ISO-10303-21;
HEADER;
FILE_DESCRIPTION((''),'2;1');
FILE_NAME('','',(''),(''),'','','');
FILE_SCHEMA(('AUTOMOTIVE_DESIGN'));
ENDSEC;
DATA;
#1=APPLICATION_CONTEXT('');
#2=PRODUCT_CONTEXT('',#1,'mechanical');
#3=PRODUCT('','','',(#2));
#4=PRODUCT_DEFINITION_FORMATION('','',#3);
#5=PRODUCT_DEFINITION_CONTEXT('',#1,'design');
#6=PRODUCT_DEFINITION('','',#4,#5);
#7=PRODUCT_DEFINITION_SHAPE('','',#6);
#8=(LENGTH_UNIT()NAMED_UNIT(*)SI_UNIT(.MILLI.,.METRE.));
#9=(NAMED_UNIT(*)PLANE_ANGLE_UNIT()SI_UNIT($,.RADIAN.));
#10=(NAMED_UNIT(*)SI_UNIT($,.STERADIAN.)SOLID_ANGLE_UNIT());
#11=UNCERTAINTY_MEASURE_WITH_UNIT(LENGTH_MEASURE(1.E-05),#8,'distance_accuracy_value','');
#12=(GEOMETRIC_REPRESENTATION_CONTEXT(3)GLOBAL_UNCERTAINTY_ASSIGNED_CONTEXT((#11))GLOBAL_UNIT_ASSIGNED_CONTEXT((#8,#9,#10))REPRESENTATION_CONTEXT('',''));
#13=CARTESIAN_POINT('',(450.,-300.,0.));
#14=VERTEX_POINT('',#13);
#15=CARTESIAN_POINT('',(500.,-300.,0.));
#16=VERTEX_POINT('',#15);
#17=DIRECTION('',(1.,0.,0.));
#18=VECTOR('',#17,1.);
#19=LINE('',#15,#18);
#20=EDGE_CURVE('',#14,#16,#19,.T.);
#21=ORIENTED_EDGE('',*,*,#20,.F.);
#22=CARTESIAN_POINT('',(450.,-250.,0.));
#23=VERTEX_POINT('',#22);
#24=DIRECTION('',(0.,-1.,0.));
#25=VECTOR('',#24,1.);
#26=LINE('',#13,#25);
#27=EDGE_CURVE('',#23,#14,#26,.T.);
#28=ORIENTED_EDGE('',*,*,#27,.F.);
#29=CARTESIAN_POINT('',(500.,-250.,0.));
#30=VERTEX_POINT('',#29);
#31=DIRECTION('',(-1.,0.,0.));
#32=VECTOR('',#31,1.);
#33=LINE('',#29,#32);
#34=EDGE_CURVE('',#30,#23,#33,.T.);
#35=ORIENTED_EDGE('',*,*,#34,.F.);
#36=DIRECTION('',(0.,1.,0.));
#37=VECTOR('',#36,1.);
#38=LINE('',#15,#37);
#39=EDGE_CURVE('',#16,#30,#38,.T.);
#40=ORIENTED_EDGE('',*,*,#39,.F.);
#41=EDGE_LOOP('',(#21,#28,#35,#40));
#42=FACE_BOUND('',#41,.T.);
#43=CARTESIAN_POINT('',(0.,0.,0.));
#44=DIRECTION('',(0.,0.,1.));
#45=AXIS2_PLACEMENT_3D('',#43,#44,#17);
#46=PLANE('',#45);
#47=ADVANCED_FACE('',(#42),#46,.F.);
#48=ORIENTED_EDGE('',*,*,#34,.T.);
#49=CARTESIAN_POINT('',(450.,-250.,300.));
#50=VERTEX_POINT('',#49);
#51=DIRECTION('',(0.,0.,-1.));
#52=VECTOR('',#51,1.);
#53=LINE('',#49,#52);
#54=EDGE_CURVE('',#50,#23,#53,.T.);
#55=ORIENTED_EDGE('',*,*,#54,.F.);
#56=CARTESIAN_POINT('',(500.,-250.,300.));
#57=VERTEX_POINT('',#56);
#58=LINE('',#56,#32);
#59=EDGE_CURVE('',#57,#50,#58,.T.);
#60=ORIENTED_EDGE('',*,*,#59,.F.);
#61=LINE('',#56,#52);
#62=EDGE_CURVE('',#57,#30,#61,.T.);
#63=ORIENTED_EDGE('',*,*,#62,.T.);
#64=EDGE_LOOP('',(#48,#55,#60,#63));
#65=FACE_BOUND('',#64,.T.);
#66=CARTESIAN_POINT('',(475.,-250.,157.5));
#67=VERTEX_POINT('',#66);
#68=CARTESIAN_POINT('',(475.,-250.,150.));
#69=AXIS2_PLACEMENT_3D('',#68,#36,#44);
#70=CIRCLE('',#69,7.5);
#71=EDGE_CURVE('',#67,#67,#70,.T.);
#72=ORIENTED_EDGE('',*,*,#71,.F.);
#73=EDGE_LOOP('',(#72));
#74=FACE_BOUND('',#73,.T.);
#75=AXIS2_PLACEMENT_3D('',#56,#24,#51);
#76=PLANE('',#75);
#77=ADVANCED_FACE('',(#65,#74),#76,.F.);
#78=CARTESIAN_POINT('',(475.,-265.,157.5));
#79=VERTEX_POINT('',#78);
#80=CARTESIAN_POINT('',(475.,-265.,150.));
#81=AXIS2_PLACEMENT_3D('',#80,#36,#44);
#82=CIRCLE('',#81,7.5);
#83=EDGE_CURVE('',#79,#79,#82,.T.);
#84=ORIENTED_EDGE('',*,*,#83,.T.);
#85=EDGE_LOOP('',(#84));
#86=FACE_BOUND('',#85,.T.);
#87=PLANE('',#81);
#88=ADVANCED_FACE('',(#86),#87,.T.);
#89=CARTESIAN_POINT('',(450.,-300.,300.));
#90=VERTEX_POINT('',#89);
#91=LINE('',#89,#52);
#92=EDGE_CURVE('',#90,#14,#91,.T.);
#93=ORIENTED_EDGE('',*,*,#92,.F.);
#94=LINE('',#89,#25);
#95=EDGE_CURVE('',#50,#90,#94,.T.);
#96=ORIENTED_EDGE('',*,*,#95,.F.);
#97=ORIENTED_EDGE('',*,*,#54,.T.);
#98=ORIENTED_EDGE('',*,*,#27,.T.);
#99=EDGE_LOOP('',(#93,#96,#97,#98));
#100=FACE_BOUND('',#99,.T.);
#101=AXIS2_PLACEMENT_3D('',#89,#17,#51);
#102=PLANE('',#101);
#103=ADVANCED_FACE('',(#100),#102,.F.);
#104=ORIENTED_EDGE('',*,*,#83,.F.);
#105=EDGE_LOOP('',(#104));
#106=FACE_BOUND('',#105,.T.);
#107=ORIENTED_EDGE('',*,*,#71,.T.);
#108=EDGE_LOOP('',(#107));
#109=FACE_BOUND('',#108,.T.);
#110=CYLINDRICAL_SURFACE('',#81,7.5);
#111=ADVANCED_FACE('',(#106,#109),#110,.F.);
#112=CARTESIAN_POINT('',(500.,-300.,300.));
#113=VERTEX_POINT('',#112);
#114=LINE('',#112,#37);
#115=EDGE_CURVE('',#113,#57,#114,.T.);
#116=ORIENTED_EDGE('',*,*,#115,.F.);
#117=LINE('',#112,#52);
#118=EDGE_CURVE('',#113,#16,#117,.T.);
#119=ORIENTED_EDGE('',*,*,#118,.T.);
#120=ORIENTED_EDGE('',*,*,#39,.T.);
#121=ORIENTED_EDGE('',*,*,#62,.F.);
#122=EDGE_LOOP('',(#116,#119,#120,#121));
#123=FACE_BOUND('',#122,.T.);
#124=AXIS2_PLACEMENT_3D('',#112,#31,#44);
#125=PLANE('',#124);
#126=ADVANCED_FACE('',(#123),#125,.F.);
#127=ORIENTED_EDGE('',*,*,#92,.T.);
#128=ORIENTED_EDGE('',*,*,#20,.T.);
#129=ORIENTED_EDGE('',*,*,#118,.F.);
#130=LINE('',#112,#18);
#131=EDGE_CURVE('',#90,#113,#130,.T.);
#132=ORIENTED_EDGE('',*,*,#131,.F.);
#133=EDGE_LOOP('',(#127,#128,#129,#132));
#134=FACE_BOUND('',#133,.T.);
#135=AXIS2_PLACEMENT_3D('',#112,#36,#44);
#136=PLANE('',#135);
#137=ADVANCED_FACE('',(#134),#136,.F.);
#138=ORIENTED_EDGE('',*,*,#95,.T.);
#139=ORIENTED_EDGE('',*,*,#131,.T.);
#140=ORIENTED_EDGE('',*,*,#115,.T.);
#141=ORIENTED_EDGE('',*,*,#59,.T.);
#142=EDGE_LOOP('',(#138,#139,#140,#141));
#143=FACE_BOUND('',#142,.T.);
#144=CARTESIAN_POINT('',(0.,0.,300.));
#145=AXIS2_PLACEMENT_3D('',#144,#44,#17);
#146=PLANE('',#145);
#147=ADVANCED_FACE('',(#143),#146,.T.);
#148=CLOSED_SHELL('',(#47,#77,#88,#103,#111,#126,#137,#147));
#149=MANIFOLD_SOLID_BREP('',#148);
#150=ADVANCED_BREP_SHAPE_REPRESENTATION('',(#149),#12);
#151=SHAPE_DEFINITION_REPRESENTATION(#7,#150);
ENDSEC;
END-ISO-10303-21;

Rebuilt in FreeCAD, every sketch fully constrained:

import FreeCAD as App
import Part
import Sketcher
from FreeCAD import Vector

doc = App.newDocument("Part")
body = doc.addObject("PartDesign::Body", "Body")

sketch1 = body.newObject("Sketcher::SketchObject", "Sketch")
sketch1.AttachmentSupport = (doc.getObject("XY_Plane"), [""])
sketch1.MapMode = "FlatFace"
sketch1.addGeometry(Part.LineSegment(Vector(450, -250, 0), Vector(450, -300, 0)), False)
sketch1.addGeometry(Part.LineSegment(Vector(450, -300, 0), Vector(500, -300, 0)), False)
sketch1.addGeometry(Part.LineSegment(Vector(500, -300, 0), Vector(500, -250, 0)), False)
sketch1.addGeometry(Part.LineSegment(Vector(500, -250, 0), Vector(450, -250, 0)), False)
sketch1.addConstraint(Sketcher.Constraint("Coincident", 0, 2, 1, 1))
sketch1.addConstraint(Sketcher.Constraint("Coincident", 1, 2, 2, 1))
sketch1.addConstraint(Sketcher.Constraint("Coincident", 2, 2, 3, 1))
sketch1.addConstraint(Sketcher.Constraint("Coincident", 3, 2, 0, 1))
sketch1.addConstraint(Sketcher.Constraint("Vertical", 0))
sketch1.addConstraint(Sketcher.Constraint("Horizontal", 1))
sketch1.addConstraint(Sketcher.Constraint("Vertical", 2))
sketch1.addConstraint(Sketcher.Constraint("Horizontal", 3))
sketch1.addConstraint(Sketcher.Constraint("Equal", 3, 0))
sketch1.addConstraint(Sketcher.Constraint("DistanceX", 1, 1, 1, 2, 50.0))
sketch1.addConstraint(Sketcher.Constraint("DistanceX", -1, 1, 0, 2, 450.0))
sketch1.addConstraint(Sketcher.Constraint("DistanceY", 0, 2, -1, 1, 300.0))
pad1 = body.newObject("PartDesign::Pad", "Pad")
pad1.Profile = sketch1
pad1.Length = 300

sketch2 = body.newObject("Sketcher::SketchObject", "Sketch001")
sketch2.AttachmentSupport = (doc.getObject("XZ_Plane"), [""])
sketch2.MapMode = "FlatFace"
sketch2.AttachmentOffset = App.Placement(Vector(0, 0, 250), App.Rotation())
sketch2.addGeometry(Part.Circle(Vector(475, 150, 0), Vector(0, 0, 1), 8), False)
sketch2.addConstraint(Sketcher.Constraint("Diameter", 0, 15.0))
sketch2.addConstraint(Sketcher.Constraint("DistanceX", -1, 1, 0, 3, 475.0))
sketch2.addConstraint(Sketcher.Constraint("DistanceY", -1, 1, 0, 3, 150.0))
pocket1 = body.newObject("PartDesign::Pocket", "Pocket")
pocket1.Profile = sketch2
pocket1.Length = 15
pocket1.Reversed = True

doc.recompute()
